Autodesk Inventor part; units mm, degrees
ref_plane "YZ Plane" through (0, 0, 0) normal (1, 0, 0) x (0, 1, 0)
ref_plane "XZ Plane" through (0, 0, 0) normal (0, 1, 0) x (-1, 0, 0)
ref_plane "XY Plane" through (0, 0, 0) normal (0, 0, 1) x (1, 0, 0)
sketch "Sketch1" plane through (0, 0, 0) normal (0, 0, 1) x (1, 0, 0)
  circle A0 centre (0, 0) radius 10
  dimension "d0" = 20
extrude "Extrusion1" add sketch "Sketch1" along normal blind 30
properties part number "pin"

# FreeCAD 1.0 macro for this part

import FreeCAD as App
import Part
import Sketcher
Q = App.Units.Quantity

doc = App.newDocument("Part")
body = doc.addObject("PartDesign::Body", "Body")

sketch1 = doc.addObject("Sketcher::SketchObject", "Sketch")
body.addObject(sketch1)
sketch1.AttachmentSupport = (doc.XY_Plane, [""])
sketch1.MapMode = "FlatFace"
sketch1.addGeometry(Part.Circle(App.Vector(0, 0, 0), App.Vector(0, 0, 1), 10), False)
sketch1.addConstraint([
    Sketcher.Constraint("Coincident", 0, 3, -1, 1),
    Sketcher.Constraint("Diameter", 0, Q("20 mm")),
])
pad1 = doc.addObject("PartDesign::Pad", "Pad")
body.addObject(pad1)
pad1.Profile = sketch1
pad1.Length = 30

doc.recompute()
